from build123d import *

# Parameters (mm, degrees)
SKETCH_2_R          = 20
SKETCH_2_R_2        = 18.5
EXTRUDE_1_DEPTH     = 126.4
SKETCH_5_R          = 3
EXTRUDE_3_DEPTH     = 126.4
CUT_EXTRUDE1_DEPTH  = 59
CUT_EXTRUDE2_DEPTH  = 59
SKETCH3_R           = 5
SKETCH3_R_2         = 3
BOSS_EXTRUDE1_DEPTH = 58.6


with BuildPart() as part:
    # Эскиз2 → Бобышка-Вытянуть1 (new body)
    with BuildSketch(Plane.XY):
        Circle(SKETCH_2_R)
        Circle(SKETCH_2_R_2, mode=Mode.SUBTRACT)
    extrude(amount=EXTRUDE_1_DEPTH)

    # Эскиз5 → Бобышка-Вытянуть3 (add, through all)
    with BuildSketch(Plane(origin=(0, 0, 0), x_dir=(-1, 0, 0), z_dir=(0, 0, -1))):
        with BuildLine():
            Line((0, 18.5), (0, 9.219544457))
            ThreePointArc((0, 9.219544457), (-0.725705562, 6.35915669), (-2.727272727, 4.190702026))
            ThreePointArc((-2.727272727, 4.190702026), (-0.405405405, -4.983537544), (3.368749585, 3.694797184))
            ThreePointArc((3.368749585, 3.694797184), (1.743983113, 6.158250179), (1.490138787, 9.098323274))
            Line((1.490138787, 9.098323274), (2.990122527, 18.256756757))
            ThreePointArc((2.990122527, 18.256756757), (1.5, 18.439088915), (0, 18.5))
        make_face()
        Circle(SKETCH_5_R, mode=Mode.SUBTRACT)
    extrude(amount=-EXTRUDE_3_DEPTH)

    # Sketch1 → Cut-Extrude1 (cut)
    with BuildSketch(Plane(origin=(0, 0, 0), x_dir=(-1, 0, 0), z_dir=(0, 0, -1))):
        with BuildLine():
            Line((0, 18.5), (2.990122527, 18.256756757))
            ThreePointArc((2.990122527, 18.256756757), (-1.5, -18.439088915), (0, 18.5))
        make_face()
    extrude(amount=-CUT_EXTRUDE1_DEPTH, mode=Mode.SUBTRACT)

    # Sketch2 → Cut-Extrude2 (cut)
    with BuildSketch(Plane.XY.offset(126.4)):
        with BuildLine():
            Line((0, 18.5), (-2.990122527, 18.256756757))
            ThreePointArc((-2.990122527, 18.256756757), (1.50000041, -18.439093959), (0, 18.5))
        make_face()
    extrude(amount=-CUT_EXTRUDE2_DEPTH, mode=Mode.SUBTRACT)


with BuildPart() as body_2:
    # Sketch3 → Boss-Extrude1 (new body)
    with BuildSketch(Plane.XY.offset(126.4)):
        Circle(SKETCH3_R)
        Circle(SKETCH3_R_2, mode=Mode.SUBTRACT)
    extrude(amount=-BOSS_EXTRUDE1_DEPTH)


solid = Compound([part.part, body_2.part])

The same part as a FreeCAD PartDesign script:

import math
import FreeCAD as App
import Part
import Sketcher

doc = App.newDocument("Part")
body = doc.addObject("PartDesign::Body", "Body")

# Sketch on XY plane
sketch1 = body.newObject("Sketcher::SketchObject", "Sketch")
sketch1.AttachmentSupport = (doc.getObject("XY_Plane"), [""])
sketch1.MapMode = "FlatFace"
sketch1.addGeometry([
    Part.Circle(App.Vector(0, 0, 0), App.Vector(0, 0, 1), 20),
    Part.Circle(App.Vector(0, 0, 0), App.Vector(0, 0, 1), 18),
], False)
sketch1.addConstraint([
    Sketcher.Constraint("Coincident", 0, 3, -1, 1),
    Sketcher.Constraint("Coincident", 1, 3, -1, 1),
    Sketcher.Constraint("Diameter", 0, 40.0),
    Sketcher.Constraint("Diameter", 1, 37.0),
])
pad1 = body.newObject("PartDesign::Pad", "Pad")
pad1.Profile = sketch1
pad1.Length = 126.4

# Sketch on XY plane
sketch2 = body.newObject("Sketcher::SketchObject", "Sketch001")
sketch2.AttachmentSupport = (doc.getObject("XY_Plane"), [""])
sketch2.MapMode = "FlatFace"
sketch2.addGeometry([
    Part.LineSegment(App.Vector(0, 18.5, 0), App.Vector(0, 9.2, 0)),  # 0
    Part.ArcOfCircle(Part.Circle(App.Vector(6, 9.2, 0), App.Vector(0, 0, 1), 6), math.radians(-180), math.radians(-123)),  # 1
    Part.ArcOfCircle(Part.Circle(App.Vector(0, 0, 0), App.Vector(0, 0, 1), 5), math.radians(132), math.radians(417)),  # 2
    Part.ArcOfCircle(Part.Circle(App.Vector(-7.4, 8.1, 0), App.Vector(0, 0, 1), 6), math.radians(-48), math.radians(9)),  # 3
    Part.LineSegment(App.Vector(-1.5, 9.1, 0), App.Vector(-3, 18.3, 0)),  # 4
    Part.ArcOfCircle(Part.Circle(App.Vector(0, 0, 0), App.Vector(0, 0, 1), 18.5), math.radians(90), math.radians(99.3)),  # 5
    Part.Circle(App.Vector(0, 0, 0), App.Vector(0, 0, 1), 3),  # 6
], False)
sketch2.addConstraint([
    Sketcher.Constraint("Tangent", 0, 2, 1, 1),
    Sketcher.Constraint("Tangent", 1, 2, 2, 2),
    Sketcher.Constraint("Tangent", 2, 1, 3, 1),
    Sketcher.Constraint("Tangent", 3, 2, 4, 1),
    Sketcher.Constraint("Coincident", 4, 2, 5, 2),
    Sketcher.Constraint("Coincident", 5, 1, 0, 1),
    Sketcher.Constraint("Vertical", 0),
    Sketcher.Constraint("Coincident", 2, 3, -1, 1),
    Sketcher.Constraint("Coincident", 5, 3, -1, 1),
    Sketcher.Constraint("Coincident", 6, 3, -1, 1),
    Sketcher.Constraint("Equal", 1, 3),
    Sketcher.Constraint("PointOnObject", 0, 2, -2),
    Sketcher.Constraint("Diameter", 6, 6.0),
    Sketcher.Constraint("Radius", 1, 6.0),
    Sketcher.Constraint("Radius", 2, 5.0),
    Sketcher.Constraint("Radius", 5, 18.5),
    Sketcher.Constraint("DistanceX", 3, 3, 2, 1, 4.0425),
    Sketcher.Constraint("DistanceX", 3, 2, -1, 1, 1.490139),
])
pad2 = body.newObject("PartDesign::Pad", "Pad001")
pad2.Profile = sketch2
pad2.Length = 126.4

# Sketch on XY plane
sketch3 = body.newObject("Sketcher::SketchObject", "Sketch002")
sketch3.AttachmentSupport = (doc.getObject("XY_Plane"), [""])
sketch3.MapMode = "FlatFace"
sketch3.addGeometry([
    Part.LineSegment(App.Vector(-3, 18.3, 0), App.Vector(0, 18.5, 0)),
    Part.ArcOfCircle(Part.Circle(App.Vector(0, 0, 0), App.Vector(0, 0, 1), 18.5), math.radians(99), math.radians(450)),
], False)
sketch3.addConstraint([
    Sketcher.Constraint("Coincident", 0, 1, 1, 1),
    Sketcher.Constraint("Coincident", 1, 2, 0, 2),
    Sketcher.Constraint("Coincident", 1, 3, -1, 1),
    Sketcher.Constraint("PointOnObject", 1, 2, -2),
    Sketcher.Constraint("Radius", 1, 18.5),
    Sketcher.Constraint("Distance", 0, 3.0),
])
pocket1 = body.newObject("PartDesign::Pocket", "Pocket")
pocket1.Profile = sketch3
pocket1.Length = 59
pocket1.Reversed = True

# Sketch on XY plane
sketch4 = body.newObject("Sketcher::SketchObject", "Sketch003")
sketch4.AttachmentSupport = (doc.getObject("XY_Plane"), [""])
sketch4.MapMode = "FlatFace"
sketch4.AttachmentOffset = App.Placement(App.Vector(0, 0, 126.4), App.Rotation())
sketch4.addGeometry([
    Part.LineSegment(App.Vector(0, 18.5, 0), App.Vector(-3, 18.3, 0)),
    Part.ArcOfCircle(Part.Circle(App.Vector(0, 0, 0), App.Vector(0, 0, 1), 18.5), math.radians(99), math.radians(450)),
], False)
sketch4.addConstraint([
    Sketcher.Constraint("Coincident", 0, 1, 1, 2),
    Sketcher.Constraint("Coincident", 1, 1, 0, 2),
    Sketcher.Constraint("Coincident", 1, 3, -1, 1),
    Sketcher.Constraint("PointOnObject", 0, 1, -2),
    Sketcher.Constraint("Distance", 0, 3.0),
    Sketcher.Constraint("DistanceY", -1, 1, 0, 1, 18.5),
])
pocket2 = body.newObject("PartDesign::Pocket", "Pocket001")
pocket2.Profile = sketch4
pocket2.Length = 59
body2 = doc.addObject("PartDesign::Body", "Body001")

# Sketch on XY plane
sketch5 = body2.newObject("Sketcher::SketchObject", "Sketch004")
sketch5.AttachmentSupport = (doc.getObject("XY_Plane001"), [""])
sketch5.MapMode = "FlatFace"
sketch5.AttachmentOffset = App.Placement(App.Vector(0, 0, 126.4), App.Rotation())
sketch5.addGeometry([
    Part.Circle(App.Vector(0, 0, 0), App.Vector(0, 0, 1), 5),
    Part.Circle(App.Vector(0, 0, 0), App.Vector(0, 0, 1), 3),
], False)
sketch5.addConstraint([
    Sketcher.Constraint("Coincident", 0, 3, -1, 1),
    Sketcher.Constraint("Coincident", 1, 3, -1, 1),
    Sketcher.Constraint("Diameter", 0, 10.0),
    Sketcher.Constraint("Diameter", 1, 6.0),
])
pad3 = body2.newObject("PartDesign::Pad", "Pad002")
pad3.Profile = sketch5
pad3.Length = 58.6
pad3.Reversed = True

doc.recompute()
